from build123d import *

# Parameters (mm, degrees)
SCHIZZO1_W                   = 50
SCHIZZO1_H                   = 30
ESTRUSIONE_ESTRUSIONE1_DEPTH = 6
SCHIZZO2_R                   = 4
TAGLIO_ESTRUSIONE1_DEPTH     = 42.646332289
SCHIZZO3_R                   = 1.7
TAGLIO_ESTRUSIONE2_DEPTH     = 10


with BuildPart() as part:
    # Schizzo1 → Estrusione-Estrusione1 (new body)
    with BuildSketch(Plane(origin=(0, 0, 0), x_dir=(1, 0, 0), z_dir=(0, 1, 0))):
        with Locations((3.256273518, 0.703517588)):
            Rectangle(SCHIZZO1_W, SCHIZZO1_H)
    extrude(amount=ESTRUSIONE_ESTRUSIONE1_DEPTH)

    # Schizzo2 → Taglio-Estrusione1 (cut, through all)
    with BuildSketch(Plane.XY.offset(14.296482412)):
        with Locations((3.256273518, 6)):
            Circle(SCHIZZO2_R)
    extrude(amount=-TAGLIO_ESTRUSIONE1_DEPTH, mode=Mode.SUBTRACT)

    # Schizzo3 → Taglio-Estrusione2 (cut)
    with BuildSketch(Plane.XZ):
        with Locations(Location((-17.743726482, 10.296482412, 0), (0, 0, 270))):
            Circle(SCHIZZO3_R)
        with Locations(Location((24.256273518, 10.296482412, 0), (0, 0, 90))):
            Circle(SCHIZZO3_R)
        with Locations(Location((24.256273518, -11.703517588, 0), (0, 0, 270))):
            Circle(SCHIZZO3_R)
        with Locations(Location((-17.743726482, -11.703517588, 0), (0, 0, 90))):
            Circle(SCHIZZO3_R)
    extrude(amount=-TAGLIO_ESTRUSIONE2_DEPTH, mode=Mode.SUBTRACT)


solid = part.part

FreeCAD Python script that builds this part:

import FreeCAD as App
import Part
import Sketcher
Q = App.Units.Quantity


def add_polygon(sketch, points):
    """Adds a closed chain of lines whose ends are joined by coincident constraints."""
    first, n = sketch.GeometryCount, len(points)
    for a, b in zip(points, points[1:] + points[:1]):
        sketch.addGeometry(Part.LineSegment(App.Vector(*a, 0), App.Vector(*b, 0)), False)
    for i in range(n):
        sketch.addConstraint(Sketcher.Constraint("Coincident", first + i, 2, first + (i + 1) % n, 1))

doc = App.newDocument("Part")
body = doc.addObject("PartDesign::Body", "Body")

# Sketch on XZ plane
sketch1 = doc.addObject("Sketcher::SketchObject", "Sketch")
body.addObject(sketch1)
sketch1.AttachmentSupport = (doc.XZ_Plane, [""])
sketch1.MapMode = "FlatFace"
add_polygon(sketch1, [(-21.743726, -15.703518), (-21.743726, 14.296482), (28.256274, 14.296482), (28.256274, -15.703518)])  # lines 0-3
sketch1.addConstraint([
    Sketcher.Constraint("Vertical", 0),
    Sketcher.Constraint("Horizontal", 1),
    Sketcher.Constraint("Vertical", 2),
    Sketcher.Constraint("Horizontal", 3),
    Sketcher.Constraint("DistanceX", 1, 1, 1, 2, Q("50 mm")),
    Sketcher.Constraint("DistanceY", 0, 1, 0, 2, Q("30 mm")),
    Sketcher.Constraint("DistanceX", 0, 2, -1, 1, Q("21.743726 mm")),
    Sketcher.Constraint("DistanceY", -1, 1, 0, 2, Q("14.296482 mm")),
])
pad1 = doc.addObject("PartDesign::Pad", "Pad")
body.addObject(pad1)
pad1.Profile = sketch1
pad1.Length = 6
pad1.Reversed = True

# Sketch on XY plane
sketch2 = doc.addObject("Sketcher::SketchObject", "Sketch001")
body.addObject(sketch2)
sketch2.AttachmentSupport = (doc.XY_Plane, [""])
sketch2.MapMode = "FlatFace"
sketch2.AttachmentOffset = App.Placement(App.Vector(0, 0, 14.296482), App.Rotation())
sketch2.addGeometry(Part.Circle(App.Vector(3.256274, 6, 0), App.Vector(0, 0, 1), 4), False)
sketch2.addConstraint([
    Sketcher.Constraint("Diameter", 0, Q("8 mm")),
    Sketcher.Constraint("DistanceY", -1, 1, 0, 3, Q("6 mm")),
    Sketcher.Constraint("DistanceX", -1, 1, 0, 3, Q("3.256274 mm")),
])
pocket1 = doc.addObject("PartDesign::Pocket", "Pocket")
body.addObject(pocket1)
pocket1.Profile = sketch2
pocket1.Type = "ThroughAll"

# Sketch on XZ plane
sketch3 = doc.addObject("Sketcher::SketchObject", "Sketch002")
body.addObject(sketch3)
sketch3.AttachmentSupport = (doc.XZ_Plane, [""])
sketch3.MapMode = "FlatFace"
sketch3.addGeometry([
    Part.Circle(App.Vector(-17.743726, 10.296482, 0), App.Vector(0, 0, 1), 1.7),
    Part.Circle(App.Vector(24.256274, 10.296482, 0), App.Vector(0, 0, 1), 1.7),
    Part.Circle(App.Vector(24.256274, -11.703518, 0), App.Vector(0, 0, 1), 1.7),
    Part.Circle(App.Vector(-17.743726, -11.703518, 0), App.Vector(0, 0, 1), 1.7),
], False)
sketch3.addConstraint([
    Sketcher.Constraint("Equal", 0, 1),
    Sketcher.Constraint("Equal", 1, 2),
    Sketcher.Constraint("Equal", 2, 3),
    Sketcher.Constraint("Horizontal", 0, 3, 1, 3),
    Sketcher.Constraint("Horizontal", 2, 3, 3, 3),
    Sketcher.Constraint("Vertical", 1, 3, 2, 3),
    Sketcher.Constraint("Vertical", 0, 3, 3, 3),
    Sketcher.Constraint("Diameter", 0, Q("3.4 mm")),
    Sketcher.Constraint("DistanceX", 0, 3, 1, 3, Q("42 mm")),
    Sketcher.Constraint("DistanceY", 2, 3, 1, 3, Q("22 mm")),
    Sketcher.Constraint("DistanceX", 0, 3, -1, 1, Q("17.743726 mm")),
    Sketcher.Constraint("DistanceY", -1, 1, 0, 3, Q("10.296482 mm")),
])
pocket2 = doc.addObject("PartDesign::Pocket", "Pocket001")
body.addObject(pocket2)
pocket2.Profile = sketch3
pocket2.Length = 10

doc.recompute()
